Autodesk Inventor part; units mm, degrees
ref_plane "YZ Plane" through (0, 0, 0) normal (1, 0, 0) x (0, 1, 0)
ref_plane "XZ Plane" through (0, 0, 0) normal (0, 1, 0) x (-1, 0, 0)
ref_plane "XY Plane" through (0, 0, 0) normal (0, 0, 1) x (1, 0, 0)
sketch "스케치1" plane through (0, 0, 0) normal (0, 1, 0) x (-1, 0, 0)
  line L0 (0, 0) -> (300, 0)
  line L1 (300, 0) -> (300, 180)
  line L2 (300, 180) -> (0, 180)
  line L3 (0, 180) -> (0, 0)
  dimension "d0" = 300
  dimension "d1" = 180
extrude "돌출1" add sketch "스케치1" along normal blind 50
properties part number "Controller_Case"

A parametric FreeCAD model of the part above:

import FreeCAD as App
import Part
import Sketcher

V = App.Vector

doc = App.newDocument("Part")
params = doc.addObject("Spreadsheet::Sheet", "Params")
for row, (alias, value) in enumerate([
    ("sketch1_width", "300 mm"),
    ("sketch1_height", "180 mm"),
    ("pad1_length", "50 mm"),
], start=1):
    params.set(f"A{row}", alias)
    params.set(f"B{row}", "=" + value)
    params.setAlias(f"B{row}", alias)

body = doc.addObject("PartDesign::Body", "Body")

sketch1 = body.newObject("Sketcher::SketchObject", "Sketch")
sketch1.AttachmentSupport = (doc.getObject("XZ_Plane"), [""])
sketch1.MapMode = "FlatFace"
sketch1.addGeometry(Part.LineSegment(V(0, 180, 0), V(0, 0, 0)), False)
sketch1.addGeometry(Part.LineSegment(V(0, 0, 0), V(-300, 0, 0)), False)
sketch1.addGeometry(Part.LineSegment(V(-300, 0, 0), V(-300, 180, 0)), False)
sketch1.addGeometry(Part.LineSegment(V(-300, 180, 0), V(0, 180, 0)), False)
sketch1.addConstraint(Sketcher.Constraint("Coincident", 0, 2, 1, 1))
sketch1.addConstraint(Sketcher.Constraint("Coincident", 1, 2, 2, 1))
sketch1.addConstraint(Sketcher.Constraint("Coincident", 2, 2, 3, 1))
sketch1.addConstraint(Sketcher.Constraint("Coincident", 3, 2, 0, 1))
sketch1.addConstraint(Sketcher.Constraint("Vertical", 0))
sketch1.addConstraint(Sketcher.Constraint("Horizontal", 1))
sketch1.addConstraint(Sketcher.Constraint("Vertical", 2))
sketch1.addConstraint(Sketcher.Constraint("Horizontal", 3))
sketch1.addConstraint(Sketcher.Constraint("Coincident", 0, 2, -1, 1))
sketch1.addConstraint(Sketcher.Constraint("DistanceX", 1, 2, 1, 1, 300.0))
sketch1.addConstraint(Sketcher.Constraint("DistanceY", 0, 2, 0, 1, 180.0))
sketch1.setExpression("Constraints[9]", "Params.sketch1_width")
sketch1.setExpression("Constraints[10]", "Params.sketch1_height")
pad1 = body.newObject("PartDesign::Pad", "Pad")
pad1.Profile = sketch1
pad1.setExpression("Length", "Params.pad1_length")
pad1.Reversed = True

doc.recompute()
